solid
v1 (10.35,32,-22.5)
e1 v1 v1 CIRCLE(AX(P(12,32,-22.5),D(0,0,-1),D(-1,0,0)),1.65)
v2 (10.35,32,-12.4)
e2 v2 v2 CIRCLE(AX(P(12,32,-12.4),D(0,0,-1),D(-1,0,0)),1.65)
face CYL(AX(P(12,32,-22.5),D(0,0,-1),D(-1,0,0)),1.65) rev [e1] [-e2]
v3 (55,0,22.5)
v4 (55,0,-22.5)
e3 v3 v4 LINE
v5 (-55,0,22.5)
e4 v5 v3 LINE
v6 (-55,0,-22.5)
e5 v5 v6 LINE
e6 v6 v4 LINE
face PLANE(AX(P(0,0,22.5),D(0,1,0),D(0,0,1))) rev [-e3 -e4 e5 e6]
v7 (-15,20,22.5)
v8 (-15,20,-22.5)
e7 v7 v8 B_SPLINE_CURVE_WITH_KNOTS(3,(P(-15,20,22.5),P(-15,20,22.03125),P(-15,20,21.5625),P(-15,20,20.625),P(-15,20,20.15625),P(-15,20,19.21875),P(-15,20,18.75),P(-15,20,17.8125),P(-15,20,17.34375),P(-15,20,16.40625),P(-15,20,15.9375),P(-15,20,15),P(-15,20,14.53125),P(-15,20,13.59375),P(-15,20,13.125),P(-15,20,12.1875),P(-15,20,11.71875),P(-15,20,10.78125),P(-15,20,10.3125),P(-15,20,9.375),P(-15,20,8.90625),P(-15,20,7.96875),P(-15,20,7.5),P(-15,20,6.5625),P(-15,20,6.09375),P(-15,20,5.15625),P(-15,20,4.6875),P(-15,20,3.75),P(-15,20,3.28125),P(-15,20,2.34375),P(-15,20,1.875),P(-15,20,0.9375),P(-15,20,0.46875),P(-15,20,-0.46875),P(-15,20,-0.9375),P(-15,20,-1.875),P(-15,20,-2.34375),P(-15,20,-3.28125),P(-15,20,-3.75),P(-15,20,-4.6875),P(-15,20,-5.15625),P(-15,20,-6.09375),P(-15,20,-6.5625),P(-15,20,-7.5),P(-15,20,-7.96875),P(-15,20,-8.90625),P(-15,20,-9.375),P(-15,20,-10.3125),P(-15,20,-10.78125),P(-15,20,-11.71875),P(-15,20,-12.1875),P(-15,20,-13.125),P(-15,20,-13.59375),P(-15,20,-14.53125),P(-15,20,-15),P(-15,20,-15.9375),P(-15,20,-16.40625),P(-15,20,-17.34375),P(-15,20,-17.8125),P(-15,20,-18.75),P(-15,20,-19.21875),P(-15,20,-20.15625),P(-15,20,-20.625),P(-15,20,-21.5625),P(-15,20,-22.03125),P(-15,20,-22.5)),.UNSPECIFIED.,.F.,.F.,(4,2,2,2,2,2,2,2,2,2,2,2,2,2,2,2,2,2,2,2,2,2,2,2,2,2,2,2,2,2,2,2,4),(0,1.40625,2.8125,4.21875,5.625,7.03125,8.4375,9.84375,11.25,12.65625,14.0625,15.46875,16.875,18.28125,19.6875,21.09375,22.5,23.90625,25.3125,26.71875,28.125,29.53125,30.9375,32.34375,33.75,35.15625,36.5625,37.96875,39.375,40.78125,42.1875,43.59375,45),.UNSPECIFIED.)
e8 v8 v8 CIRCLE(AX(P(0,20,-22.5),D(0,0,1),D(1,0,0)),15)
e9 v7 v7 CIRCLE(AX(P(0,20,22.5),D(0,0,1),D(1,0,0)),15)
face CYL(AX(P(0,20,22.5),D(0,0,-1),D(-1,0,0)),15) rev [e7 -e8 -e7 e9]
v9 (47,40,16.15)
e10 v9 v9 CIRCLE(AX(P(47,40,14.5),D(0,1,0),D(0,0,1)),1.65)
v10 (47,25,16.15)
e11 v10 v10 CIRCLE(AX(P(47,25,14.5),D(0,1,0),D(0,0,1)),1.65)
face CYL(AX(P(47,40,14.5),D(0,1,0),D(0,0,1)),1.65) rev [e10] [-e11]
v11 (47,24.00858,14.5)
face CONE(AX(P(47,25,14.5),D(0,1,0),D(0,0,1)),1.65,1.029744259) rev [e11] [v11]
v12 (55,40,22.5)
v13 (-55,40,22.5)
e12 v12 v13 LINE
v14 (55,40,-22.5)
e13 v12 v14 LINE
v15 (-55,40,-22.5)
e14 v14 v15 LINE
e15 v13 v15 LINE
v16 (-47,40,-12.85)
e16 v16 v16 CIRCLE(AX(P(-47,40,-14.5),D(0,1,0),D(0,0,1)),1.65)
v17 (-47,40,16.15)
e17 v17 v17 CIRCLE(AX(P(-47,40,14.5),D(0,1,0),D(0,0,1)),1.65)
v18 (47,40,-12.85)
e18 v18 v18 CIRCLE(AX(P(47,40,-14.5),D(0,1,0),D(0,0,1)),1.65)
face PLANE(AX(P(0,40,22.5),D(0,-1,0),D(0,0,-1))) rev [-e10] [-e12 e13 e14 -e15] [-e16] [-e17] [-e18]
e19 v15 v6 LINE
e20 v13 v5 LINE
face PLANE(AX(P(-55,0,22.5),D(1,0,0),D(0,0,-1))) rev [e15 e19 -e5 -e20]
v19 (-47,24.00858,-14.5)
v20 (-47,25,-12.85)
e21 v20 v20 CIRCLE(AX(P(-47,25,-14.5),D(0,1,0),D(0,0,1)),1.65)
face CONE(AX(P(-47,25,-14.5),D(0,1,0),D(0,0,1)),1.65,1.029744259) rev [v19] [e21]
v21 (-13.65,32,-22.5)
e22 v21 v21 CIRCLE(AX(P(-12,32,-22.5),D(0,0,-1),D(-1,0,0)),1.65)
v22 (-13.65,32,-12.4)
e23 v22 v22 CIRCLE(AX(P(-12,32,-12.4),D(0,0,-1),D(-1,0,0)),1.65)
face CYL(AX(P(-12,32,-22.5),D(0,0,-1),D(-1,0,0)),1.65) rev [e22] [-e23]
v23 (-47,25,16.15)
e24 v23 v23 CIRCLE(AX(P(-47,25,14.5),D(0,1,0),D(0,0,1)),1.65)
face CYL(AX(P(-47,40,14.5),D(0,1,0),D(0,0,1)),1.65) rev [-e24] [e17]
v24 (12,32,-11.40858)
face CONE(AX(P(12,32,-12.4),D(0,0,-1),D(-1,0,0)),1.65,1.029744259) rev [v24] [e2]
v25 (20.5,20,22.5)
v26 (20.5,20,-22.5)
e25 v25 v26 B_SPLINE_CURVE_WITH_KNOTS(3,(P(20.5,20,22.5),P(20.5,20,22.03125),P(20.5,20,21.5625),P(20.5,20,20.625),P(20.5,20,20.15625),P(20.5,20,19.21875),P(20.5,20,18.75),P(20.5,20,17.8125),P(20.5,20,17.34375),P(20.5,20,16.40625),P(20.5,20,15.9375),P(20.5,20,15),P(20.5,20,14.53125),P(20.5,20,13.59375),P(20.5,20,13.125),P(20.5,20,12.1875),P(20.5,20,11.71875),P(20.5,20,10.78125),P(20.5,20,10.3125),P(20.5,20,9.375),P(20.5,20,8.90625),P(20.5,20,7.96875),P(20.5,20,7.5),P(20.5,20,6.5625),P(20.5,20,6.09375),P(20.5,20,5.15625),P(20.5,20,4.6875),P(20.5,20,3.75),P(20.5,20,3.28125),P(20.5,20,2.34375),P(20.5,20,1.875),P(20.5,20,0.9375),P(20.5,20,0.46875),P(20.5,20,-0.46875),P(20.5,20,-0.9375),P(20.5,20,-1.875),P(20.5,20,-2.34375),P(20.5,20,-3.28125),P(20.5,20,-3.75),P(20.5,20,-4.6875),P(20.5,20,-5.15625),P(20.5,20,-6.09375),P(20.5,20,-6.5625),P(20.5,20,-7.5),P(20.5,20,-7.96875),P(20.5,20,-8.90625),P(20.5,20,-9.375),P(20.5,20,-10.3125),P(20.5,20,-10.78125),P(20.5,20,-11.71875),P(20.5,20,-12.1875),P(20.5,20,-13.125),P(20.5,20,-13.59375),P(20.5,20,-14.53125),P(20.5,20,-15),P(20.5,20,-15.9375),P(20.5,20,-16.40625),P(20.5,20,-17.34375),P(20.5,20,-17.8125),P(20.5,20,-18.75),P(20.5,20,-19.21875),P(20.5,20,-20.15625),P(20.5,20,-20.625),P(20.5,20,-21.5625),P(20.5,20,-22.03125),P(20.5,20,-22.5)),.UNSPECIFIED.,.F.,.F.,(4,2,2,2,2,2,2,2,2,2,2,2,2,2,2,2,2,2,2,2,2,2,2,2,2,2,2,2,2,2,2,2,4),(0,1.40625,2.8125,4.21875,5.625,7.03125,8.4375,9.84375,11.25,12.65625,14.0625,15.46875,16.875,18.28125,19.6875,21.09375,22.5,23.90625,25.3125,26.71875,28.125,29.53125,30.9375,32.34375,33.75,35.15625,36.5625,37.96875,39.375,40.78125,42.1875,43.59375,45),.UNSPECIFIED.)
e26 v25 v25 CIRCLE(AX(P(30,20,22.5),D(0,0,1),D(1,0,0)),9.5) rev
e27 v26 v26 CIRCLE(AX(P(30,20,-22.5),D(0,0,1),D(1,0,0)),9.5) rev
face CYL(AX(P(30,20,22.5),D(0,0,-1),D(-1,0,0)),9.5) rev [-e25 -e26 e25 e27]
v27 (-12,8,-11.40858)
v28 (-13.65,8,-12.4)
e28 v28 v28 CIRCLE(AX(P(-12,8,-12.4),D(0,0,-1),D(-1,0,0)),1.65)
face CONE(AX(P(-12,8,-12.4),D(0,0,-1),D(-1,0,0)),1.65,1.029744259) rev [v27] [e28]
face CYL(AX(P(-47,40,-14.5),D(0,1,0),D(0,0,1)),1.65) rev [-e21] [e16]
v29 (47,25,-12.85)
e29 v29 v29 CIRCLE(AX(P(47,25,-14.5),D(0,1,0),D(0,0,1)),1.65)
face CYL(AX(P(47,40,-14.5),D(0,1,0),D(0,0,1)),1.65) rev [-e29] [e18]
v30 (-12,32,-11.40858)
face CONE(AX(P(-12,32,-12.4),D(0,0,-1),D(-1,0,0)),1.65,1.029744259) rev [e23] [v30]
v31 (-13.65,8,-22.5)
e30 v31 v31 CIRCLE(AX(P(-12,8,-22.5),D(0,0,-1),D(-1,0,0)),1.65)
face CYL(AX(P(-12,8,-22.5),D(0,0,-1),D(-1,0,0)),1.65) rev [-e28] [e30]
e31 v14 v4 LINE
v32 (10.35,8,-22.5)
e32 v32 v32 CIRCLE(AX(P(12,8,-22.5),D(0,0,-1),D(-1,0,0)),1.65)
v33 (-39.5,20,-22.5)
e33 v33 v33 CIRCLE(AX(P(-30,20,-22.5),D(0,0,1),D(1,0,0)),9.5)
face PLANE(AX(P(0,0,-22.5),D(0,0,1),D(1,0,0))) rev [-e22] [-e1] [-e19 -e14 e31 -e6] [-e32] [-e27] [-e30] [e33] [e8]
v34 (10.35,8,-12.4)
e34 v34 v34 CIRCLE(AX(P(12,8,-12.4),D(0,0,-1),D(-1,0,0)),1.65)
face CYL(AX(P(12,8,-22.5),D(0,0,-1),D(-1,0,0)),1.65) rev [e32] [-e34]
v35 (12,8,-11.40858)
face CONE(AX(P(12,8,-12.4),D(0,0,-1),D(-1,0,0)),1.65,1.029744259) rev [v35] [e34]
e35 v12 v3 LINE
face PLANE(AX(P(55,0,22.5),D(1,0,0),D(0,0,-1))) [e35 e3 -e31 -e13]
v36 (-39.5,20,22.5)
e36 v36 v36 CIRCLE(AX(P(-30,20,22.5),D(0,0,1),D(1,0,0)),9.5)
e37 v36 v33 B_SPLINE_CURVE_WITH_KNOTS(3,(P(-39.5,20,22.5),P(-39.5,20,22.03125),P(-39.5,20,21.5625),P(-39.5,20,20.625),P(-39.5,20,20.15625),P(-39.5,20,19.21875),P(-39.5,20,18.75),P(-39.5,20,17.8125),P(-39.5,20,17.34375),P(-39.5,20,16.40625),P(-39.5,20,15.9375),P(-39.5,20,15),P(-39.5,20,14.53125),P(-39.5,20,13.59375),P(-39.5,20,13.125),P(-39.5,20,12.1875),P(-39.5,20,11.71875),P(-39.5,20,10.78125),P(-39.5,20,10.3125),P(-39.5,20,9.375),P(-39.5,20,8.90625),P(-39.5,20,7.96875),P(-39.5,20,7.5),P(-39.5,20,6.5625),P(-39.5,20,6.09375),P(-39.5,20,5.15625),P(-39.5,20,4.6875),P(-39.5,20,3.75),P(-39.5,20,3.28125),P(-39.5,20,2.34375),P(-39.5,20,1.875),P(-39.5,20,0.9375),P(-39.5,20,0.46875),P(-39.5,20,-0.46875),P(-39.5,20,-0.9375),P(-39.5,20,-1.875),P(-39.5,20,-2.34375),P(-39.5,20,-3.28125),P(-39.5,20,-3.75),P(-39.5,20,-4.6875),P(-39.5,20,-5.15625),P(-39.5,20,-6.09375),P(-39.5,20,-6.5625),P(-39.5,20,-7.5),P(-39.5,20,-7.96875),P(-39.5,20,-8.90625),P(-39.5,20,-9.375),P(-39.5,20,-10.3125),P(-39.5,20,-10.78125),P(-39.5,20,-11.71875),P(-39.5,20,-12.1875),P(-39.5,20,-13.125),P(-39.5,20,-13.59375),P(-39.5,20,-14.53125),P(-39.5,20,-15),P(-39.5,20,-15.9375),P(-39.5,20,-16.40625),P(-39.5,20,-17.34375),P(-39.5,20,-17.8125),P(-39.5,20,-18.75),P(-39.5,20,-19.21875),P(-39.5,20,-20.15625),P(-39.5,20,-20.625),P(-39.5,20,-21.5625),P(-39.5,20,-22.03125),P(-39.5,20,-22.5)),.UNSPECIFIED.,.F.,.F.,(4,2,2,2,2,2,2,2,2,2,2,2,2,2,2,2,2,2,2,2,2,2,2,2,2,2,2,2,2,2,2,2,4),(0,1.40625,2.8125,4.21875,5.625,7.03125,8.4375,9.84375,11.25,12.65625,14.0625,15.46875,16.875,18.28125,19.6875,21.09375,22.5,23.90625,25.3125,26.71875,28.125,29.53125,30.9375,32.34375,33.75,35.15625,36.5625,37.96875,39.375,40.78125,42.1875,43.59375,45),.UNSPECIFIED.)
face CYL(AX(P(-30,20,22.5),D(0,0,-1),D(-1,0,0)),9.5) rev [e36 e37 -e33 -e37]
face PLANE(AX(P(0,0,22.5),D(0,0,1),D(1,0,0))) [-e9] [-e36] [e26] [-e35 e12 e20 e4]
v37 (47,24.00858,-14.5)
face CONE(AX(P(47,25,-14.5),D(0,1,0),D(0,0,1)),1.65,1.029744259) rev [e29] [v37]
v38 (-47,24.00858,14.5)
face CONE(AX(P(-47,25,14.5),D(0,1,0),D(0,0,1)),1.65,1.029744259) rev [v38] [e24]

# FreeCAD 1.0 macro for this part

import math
import FreeCAD as App
import Part
import Sketcher

V = App.Vector
Q = App.Units.Quantity


def add_polygon(sketch, points):
    """Adds a closed chain of lines whose ends are joined by coincident constraints."""
    first, n = sketch.GeometryCount, len(points)
    for a, b in zip(points, points[1:] + points[:1]):
        sketch.addGeometry(Part.LineSegment(App.Vector(*a, 0), App.Vector(*b, 0)), False)
    for i in range(n):
        sketch.addConstraint(Sketcher.Constraint("Coincident", first + i, 2, first + (i + 1) % n, 1))

doc = App.newDocument("Part")
params = doc.addObject("Spreadsheet::Sheet", "Params")
for row, (alias, value) in enumerate([
    ("sketch1_diameter", "19 mm"),
    ("sketch1_radius", "15 mm"),
    ("sketch1_width", "110 mm"),
    ("sketch1_height", "40 mm"),
    ("pad1_length", "45 mm"),
    ("sketch2_diameter", "3.3 mm"),
    ("hole_diameter", "3.3 mm"),
    ("hole_depth", "10.1 mm"),
    ("sketch3_diameter", "3.3 mm"),
    ("hole2_diameter", "3.3 mm"),
    ("hole2_depth", "15 mm"),
], start=1):
    params.set(f"A{row}", alias)
    params.set(f"B{row}", "=" + value)
    params.setAlias(f"B{row}", alias)

body = doc.addObject("PartDesign::Body", "Body")

sketch1 = body.newObject("Sketcher::SketchObject", "Sketch")
sketch1.AttachmentSupport = (doc.getObject("XY_Plane"), [""])
sketch1.MapMode = "FlatFace"
add_polygon(sketch1, [(-55, 0), (55, 0), (55, 40), (-55, 40)])
sketch1.addGeometry(Part.ArcOfCircle(Part.Circle(V(0, 20, 0), V(0, 0, 1), 15), math.radians(90), math.radians(270)), False)
sketch1.addGeometry(Part.ArcOfCircle(Part.Circle(V(0, 20, 0), V(0, 0, 1), 15), math.radians(0), math.radians(90)), False)
sketch1.addGeometry(Part.ArcOfCircle(Part.Circle(V(0, 20, 0), V(0, 0, 1), 15), math.radians(-90), math.radians(0)), False)
sketch1.addGeometry(Part.Circle(V(-30, 20, 0), V(0, 0, 1), 9.5), False)
sketch1.addGeometry(Part.Circle(V(30, 20, 0), V(0, 0, 1), 9.5), False)
sketch1.addConstraint(Sketcher.Constraint("Tangent", 4, 1, 5, 2))
sketch1.addConstraint(Sketcher.Constraint("Tangent", 5, 1, 6, 2))
sketch1.addConstraint(Sketcher.Constraint("Tangent", 6, 1, 4, 2))
sketch1.addConstraint(Sketcher.Constraint("Horizontal", 0))
sketch1.addConstraint(Sketcher.Constraint("Vertical", 1))
sketch1.addConstraint(Sketcher.Constraint("Horizontal", 2))
sketch1.addConstraint(Sketcher.Constraint("Vertical", 3))
sketch1.addConstraint(Sketcher.Constraint("Equal", 7, 8))
sketch1.addConstraint(Sketcher.Constraint("Symmetric", 0, 2, 3, 2, -1, 1))
sketch1.addConstraint(Sketcher.Constraint("Symmetric", 7, 3, 8, 3, -2))
sketch1.addConstraint(Sketcher.Constraint("PointOnObject", 4, 3, -2))
sketch1.addConstraint(Sketcher.Constraint("PointOnObject", 4, 1, -2))
sketch1.addConstraint(Sketcher.Constraint("PointOnObject", 6, 1, -2))
sketch1.addConstraint(Sketcher.Constraint("Horizontal", 6, 3, 7, 3))
sketch1.addConstraint(Sketcher.Constraint("Horizontal", 8, 3, 5, 1))
sketch1.addConstraint(Sketcher.Constraint("Diameter", 7, Q("19 mm")))
sketch1.addConstraint(Sketcher.Constraint("Radius", 4, Q("15 mm")))
sketch1.addConstraint(Sketcher.Constraint("DistanceX", 0, 1, 0, 2, Q("110 mm")))
sketch1.addConstraint(Sketcher.Constraint("DistanceY", 1, 1, 1, 2, Q("40 mm")))
sketch1.addConstraint(Sketcher.Constraint("DistanceY", -1, 1, 4, 3, Q("20 mm")))
sketch1.addConstraint(Sketcher.Constraint("DistanceX", 7, 3, -1, 1, Q("30 mm")))
sketch1.setExpression("Constraints[19]", "Params.sketch1_diameter")
sketch1.setExpression("Constraints[20]", "Params.sketch1_radius")
sketch1.setExpression("Constraints[21]", "Params.sketch1_width")
sketch1.setExpression("Constraints[22]", "Params.sketch1_height")
pad1 = body.newObject("PartDesign::Pad", "Pad")
pad1.Profile = sketch1
pad1.setExpression("Length", "Params.pad1_length")
pad1.Midplane = True

sketch2 = body.newObject("Sketcher::SketchObject", "Sketch001")
sketch2.AttachmentSupport = (doc.getObject("XY_Plane"), [""])
sketch2.MapMode = "FlatFace"
sketch2.AttachmentOffset = App.Placement(V(0, 0, -22.5), App.Rotation())
sketch2.addGeometry(Part.Circle(V(-12, 32, 0), V(0, 0, 1), 1.65), False)
sketch2.addGeometry(Part.Circle(V(12, 32, 0), V(0, 0, 1), 1.65), False)
sketch2.addGeometry(Part.Circle(V(-12, 8, 0), V(0, 0, 1), 1.65), False)
sketch2.addGeometry(Part.Circle(V(12, 8, 0), V(0, 0, 1), 1.65), False)
sketch2.addConstraint(Sketcher.Constraint("Equal", 0, 1))
sketch2.addConstraint(Sketcher.Constraint("Equal", 1, 2))
sketch2.addConstraint(Sketcher.Constraint("Equal", 2, 3))
sketch2.addConstraint(Sketcher.Constraint("Symmetric", 0, 3, 1, 3, -2))
sketch2.addConstraint(Sketcher.Constraint("Symmetric", 2, 3, 3, 3, -2))
sketch2.addConstraint(Sketcher.Constraint("Vertical", 0, 3, 2, 3))
sketch2.addConstraint(Sketcher.Constraint("Diameter", 0, Q("3.3 mm")))
sketch2.addConstraint(Sketcher.Constraint("DistanceX", 0, 3, -1, 1, Q("12 mm")))
sketch2.addConstraint(Sketcher.Constraint("DistanceY", -1, 1, 0, 3, Q("32 mm")))
sketch2.addConstraint(Sketcher.Constraint("DistanceY", -1, 1, 2, 3, Q("8 mm")))
sketch2.setExpression("Constraints[6]", "Params.sketch2_diameter")
doc.recompute()
hole = body.newObject("PartDesign::Hole", "Hole")
hole.Profile = sketch2
hole.ThreadType = "None"
hole.setExpression("Diameter", "Params.hole_diameter")
hole.DepthType = "Dimension"
hole.setExpression("Depth", "Params.hole_depth")
hole.DrillPoint = "Angled"
hole.DrillPointAngle = 118
hole.Reversed = True

sketch3 = body.newObject("Sketcher::SketchObject", "Sketch002")
sketch3.AttachmentSupport = (doc.getObject("XZ_Plane"), [""])
sketch3.MapMode = "FlatFace"
sketch3.AttachmentOffset = App.Placement(V(0, 0, -40), App.Rotation())
sketch3.addGeometry(Part.Circle(V(47, -14.5, 0), V(0, 0, 1), 1.65), False)
sketch3.addGeometry(Part.Circle(V(-47, -14.5, 0), V(0, 0, 1), 1.65), False)
sketch3.addGeometry(Part.Circle(V(-47, 14.5, 0), V(0, 0, 1), 1.65), False)
sketch3.addGeometry(Part.Circle(V(47, 14.5, 0), V(0, 0, 1), 1.65), False)
sketch3.addConstraint(Sketcher.Constraint("Equal", 0, 1))
sketch3.addConstraint(Sketcher.Constraint("Equal", 1, 2))
sketch3.addConstraint(Sketcher.Constraint("Equal", 2, 3))
sketch3.addConstraint(Sketcher.Constraint("Symmetric", 0, 3, 2, 3, -1, 1))
sketch3.addConstraint(Sketcher.Constraint("Symmetric", 1, 3, 3, 3, -1, 1))
sketch3.addConstraint(Sketcher.Constraint("Symmetric", 0, 3, 1, 3, -2))
sketch3.addConstraint(Sketcher.Constraint("Diameter", 0, Q("3.3 mm")))
sketch3.addConstraint(Sketcher.Constraint("DistanceX", -1, 1, 0, 3, Q("47 mm")))
sketch3.addConstraint(Sketcher.Constraint("DistanceY", 1, 3, 2, 3, Q("29 mm")))
sketch3.setExpression("Constraints[6]", "Params.sketch3_diameter")
doc.recompute()
hole2 = body.newObject("PartDesign::Hole", "Hole001")
hole2.Profile = sketch3
hole2.ThreadType = "None"
hole2.setExpression("Diameter", "Params.hole2_diameter")
hole2.DepthType = "Dimension"
hole2.setExpression("Depth", "Params.hole2_depth")
hole2.DrillPoint = "Angled"
hole2.DrillPointAngle = 118
hole2.Reversed = True

doc.recompute()
